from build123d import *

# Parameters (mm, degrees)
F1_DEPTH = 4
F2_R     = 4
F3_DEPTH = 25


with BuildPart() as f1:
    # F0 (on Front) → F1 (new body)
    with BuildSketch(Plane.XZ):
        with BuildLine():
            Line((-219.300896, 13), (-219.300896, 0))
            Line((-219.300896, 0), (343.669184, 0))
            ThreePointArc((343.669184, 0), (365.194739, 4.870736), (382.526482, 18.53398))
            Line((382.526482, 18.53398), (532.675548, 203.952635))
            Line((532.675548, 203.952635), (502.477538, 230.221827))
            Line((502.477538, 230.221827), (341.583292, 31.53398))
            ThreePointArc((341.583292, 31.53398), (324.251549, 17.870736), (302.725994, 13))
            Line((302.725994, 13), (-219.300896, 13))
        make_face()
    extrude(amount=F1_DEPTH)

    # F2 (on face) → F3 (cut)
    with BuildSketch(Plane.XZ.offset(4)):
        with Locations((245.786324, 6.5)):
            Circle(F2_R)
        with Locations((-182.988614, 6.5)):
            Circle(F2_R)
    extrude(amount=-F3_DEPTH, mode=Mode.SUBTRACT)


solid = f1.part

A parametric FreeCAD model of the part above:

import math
import FreeCAD as App
import Part
import Sketcher
Q = App.Units.Quantity

doc = App.newDocument("Part")
params = doc.addObject("Spreadsheet::Sheet", "Params")
for row, (alias, value) in enumerate([
    ("sketch1_height", "13 mm"),
    ("pad1_length", "4 mm"),
    ("sketch2_diameter", "8 mm"),
    ("pocket1_length", "25 mm"),
], start=1):
    params.set(f"A{row}", alias)
    params.set(f"B{row}", "=" + value)
    params.setAlias(f"B{row}", alias)

body = doc.addObject("PartDesign::Body", "Body")

sketch1 = body.newObject("Sketcher::SketchObject", "Sketch")
sketch1.AttachmentSupport = (doc.getObject("XZ_Plane"), [""])
sketch1.MapMode = "FlatFace"
sketch1.addGeometry(Part.LineSegment(App.Vector(-219, 13, 0), App.Vector(-219, 0, 0)), False)
sketch1.addGeometry(Part.LineSegment(App.Vector(-219, 0, 0), App.Vector(344, 0, 0)), False)
sketch1.addGeometry(Part.ArcOfCircle(Part.Circle(App.Vector(344, 50, 0), App.Vector(0, 0, 1), 50), math.radians(-90), math.radians(-39)), False)
sketch1.addGeometry(Part.LineSegment(App.Vector(383, 19, 0), App.Vector(533, 204, 0)), False)
sketch1.addGeometry(Part.LineSegment(App.Vector(533, 204, 0), App.Vector(502, 230, 0)), False)
sketch1.addGeometry(Part.LineSegment(App.Vector(502, 230, 0), App.Vector(342, 32, 0)), False)
sketch1.addGeometry(Part.ArcOfCircle(Part.Circle(App.Vector(303, 63, 0), App.Vector(0, 0, 1), 50), math.radians(-90), math.radians(-39)), False)
sketch1.addGeometry(Part.LineSegment(App.Vector(303, 13, 0), App.Vector(-219, 13, 0)), False)
sketch1.addConstraint(Sketcher.Constraint("Coincident", 0, 2, 1, 1))
sketch1.addConstraint(Sketcher.Constraint("Tangent", 1, 2, 2, 1))
sketch1.addConstraint(Sketcher.Constraint("Tangent", 2, 2, 3, 1))
sketch1.addConstraint(Sketcher.Constraint("Coincident", 3, 2, 4, 1))
sketch1.addConstraint(Sketcher.Constraint("Coincident", 4, 2, 5, 1))
sketch1.addConstraint(Sketcher.Constraint("Tangent", 5, 2, 6, 2))
sketch1.addConstraint(Sketcher.Constraint("Tangent", 6, 1, 7, 1))
sketch1.addConstraint(Sketcher.Constraint("Coincident", 7, 2, 0, 1))
sketch1.addConstraint(Sketcher.Constraint("Vertical", 0))
sketch1.addConstraint(Sketcher.Constraint("Horizontal", 1))
sketch1.addConstraint(Sketcher.Constraint("Horizontal", 7))
sketch1.addConstraint(Sketcher.Constraint("Equal", 2, 6))
sketch1.addConstraint(Sketcher.Constraint("PointOnObject", 0, 2, -1))
sketch1.addConstraint(Sketcher.Constraint("Parallel", 3, 5))
sketch1.addConstraint(Sketcher.Constraint("DistanceY", 0, 2, 0, 1, 13.0))
sketch1.addConstraint(Sketcher.Constraint("Angle", 3, Q("51 deg")))
sketch1.addConstraint(Sketcher.Constraint("Radius", 2, 50.000002))
sketch1.addConstraint(Sketcher.Constraint("DistanceX", 1, 1, 1, 2, 562.97008))
sketch1.addConstraint(Sketcher.Constraint("DistanceX", 7, 2, 7, 1, 522.02689))
sketch1.addConstraint(Sketcher.Constraint("Distance", 4, 40.02487))
sketch1.addConstraint(Sketcher.Constraint("DistanceX", -1, 1, 3, 2, 532.675548))
sketch1.addConstraint(Sketcher.Constraint("DistanceX", -1, 1, 5, 2, 341.583292))
sketch1.setExpression("Constraints[14]", "Params.sketch1_height")
pad1 = body.newObject("PartDesign::Pad", "Pad")
pad1.Profile = sketch1
pad1.setExpression("Length", "Params.pad1_length")

sketch2 = body.newObject("Sketcher::SketchObject", "Sketch001")
sketch2.AttachmentSupport = (doc.getObject("XZ_Plane"), [""])
sketch2.MapMode = "FlatFace"
sketch2.AttachmentOffset = App.Placement(App.Vector(0, 0, 4), App.Rotation())
sketch2.addGeometry(Part.Circle(App.Vector(245.8, 6.5, 0), App.Vector(0, 0, 1), 4), False)
sketch2.addGeometry(Part.Circle(App.Vector(-183, 6.5, 0), App.Vector(0, 0, 1), 4), False)
sketch2.addConstraint(Sketcher.Constraint("Equal", 0, 1))
sketch2.addConstraint(Sketcher.Constraint("Horizontal", 0, 3, 1, 3))
sketch2.addConstraint(Sketcher.Constraint("Diameter", 0, 8.0))
sketch2.addConstraint(Sketcher.Constraint("DistanceY", -1, 1, 0, 3, 6.5))
sketch2.addConstraint(Sketcher.Constraint("DistanceX", 1, 3, 0, 3, 428.774938))
sketch2.addConstraint(Sketcher.Constraint("DistanceX", -1, 1, 0, 3, 245.786324))
sketch2.setExpression("Constraints[2]", "Params.sketch2_diameter")
pocket1 = body.newObject("PartDesign::Pocket", "Pocket")
pocket1.Profile = sketch2
pocket1.setExpression("Length", "Params.pocket1_length")

doc.recompute()
